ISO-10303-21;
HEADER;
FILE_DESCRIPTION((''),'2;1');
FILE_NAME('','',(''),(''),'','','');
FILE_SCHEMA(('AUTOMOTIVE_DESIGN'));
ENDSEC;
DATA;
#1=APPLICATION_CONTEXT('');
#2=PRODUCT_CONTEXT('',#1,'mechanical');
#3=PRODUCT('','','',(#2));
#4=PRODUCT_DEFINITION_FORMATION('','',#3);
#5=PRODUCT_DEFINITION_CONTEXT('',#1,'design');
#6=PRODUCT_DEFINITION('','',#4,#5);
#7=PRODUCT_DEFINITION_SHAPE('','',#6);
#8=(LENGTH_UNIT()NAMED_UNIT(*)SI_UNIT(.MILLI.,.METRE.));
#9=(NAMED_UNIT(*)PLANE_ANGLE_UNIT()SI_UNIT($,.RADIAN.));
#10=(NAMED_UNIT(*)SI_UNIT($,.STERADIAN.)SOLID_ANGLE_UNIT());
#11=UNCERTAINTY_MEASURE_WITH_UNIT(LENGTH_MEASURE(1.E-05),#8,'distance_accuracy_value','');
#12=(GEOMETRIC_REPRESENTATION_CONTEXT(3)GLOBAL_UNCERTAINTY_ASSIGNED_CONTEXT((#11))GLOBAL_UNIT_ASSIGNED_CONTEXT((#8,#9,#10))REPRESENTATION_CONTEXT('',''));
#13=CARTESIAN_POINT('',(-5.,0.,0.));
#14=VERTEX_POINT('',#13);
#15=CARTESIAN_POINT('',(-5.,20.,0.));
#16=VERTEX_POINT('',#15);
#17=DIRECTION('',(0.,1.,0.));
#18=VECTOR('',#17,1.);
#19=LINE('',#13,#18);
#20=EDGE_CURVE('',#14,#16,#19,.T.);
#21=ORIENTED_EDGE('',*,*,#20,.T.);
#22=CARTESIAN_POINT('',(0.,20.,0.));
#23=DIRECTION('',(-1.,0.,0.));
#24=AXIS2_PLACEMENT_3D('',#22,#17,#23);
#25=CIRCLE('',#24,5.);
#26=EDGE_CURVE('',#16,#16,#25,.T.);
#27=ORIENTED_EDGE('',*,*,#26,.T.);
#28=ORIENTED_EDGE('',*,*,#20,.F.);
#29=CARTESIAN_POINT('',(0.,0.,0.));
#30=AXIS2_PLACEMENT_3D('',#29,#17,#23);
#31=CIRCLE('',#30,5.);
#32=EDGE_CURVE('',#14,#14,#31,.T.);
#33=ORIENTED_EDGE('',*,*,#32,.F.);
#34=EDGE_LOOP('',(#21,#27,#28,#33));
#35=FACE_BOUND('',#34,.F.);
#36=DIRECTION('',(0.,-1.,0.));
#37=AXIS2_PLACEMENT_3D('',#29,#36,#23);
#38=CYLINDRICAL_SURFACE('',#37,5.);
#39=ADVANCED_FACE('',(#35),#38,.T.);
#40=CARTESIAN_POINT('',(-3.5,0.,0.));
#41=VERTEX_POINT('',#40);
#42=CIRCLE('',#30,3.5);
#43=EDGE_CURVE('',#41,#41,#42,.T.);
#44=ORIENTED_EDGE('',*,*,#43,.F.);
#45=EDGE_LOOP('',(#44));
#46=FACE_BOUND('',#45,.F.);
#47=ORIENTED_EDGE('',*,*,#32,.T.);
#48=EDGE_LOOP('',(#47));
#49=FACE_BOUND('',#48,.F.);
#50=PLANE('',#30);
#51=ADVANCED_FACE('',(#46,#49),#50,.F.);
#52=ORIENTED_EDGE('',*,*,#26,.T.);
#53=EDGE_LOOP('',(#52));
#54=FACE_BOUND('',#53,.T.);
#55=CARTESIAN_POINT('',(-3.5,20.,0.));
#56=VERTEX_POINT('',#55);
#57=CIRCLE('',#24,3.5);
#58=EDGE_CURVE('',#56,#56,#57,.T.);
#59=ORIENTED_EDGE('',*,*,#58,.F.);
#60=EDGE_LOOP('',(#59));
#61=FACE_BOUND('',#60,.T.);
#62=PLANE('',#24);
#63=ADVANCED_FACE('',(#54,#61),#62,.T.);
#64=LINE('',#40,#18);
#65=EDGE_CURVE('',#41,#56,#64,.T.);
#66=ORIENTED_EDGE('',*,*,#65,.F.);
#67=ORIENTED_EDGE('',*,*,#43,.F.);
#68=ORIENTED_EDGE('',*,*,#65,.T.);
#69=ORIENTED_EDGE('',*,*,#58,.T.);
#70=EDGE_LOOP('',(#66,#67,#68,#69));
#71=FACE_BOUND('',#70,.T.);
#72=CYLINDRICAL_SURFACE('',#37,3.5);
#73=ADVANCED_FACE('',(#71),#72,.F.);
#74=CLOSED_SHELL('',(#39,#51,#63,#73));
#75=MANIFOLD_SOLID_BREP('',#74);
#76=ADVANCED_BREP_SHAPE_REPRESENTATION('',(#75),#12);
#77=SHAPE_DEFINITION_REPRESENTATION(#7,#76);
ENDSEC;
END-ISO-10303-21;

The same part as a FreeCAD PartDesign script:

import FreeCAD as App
import Part
import Sketcher

V = App.Vector

doc = App.newDocument("Part")
body = doc.addObject("PartDesign::Body", "Body")

sketch1 = doc.addObject("Sketcher::SketchObject", "Sketch")
body.addObject(sketch1)
sketch1.AttachmentSupport = (doc.XZ_Plane, [""])
sketch1.MapMode = "FlatFace"
sketch1.addGeometry([
    Part.Circle(V(0, 0, 0), V(0, 0, 1), 5),
    Part.Circle(V(0, 0, 0), V(0, 0, 1), 3.5),
], False)
sketch1.addConstraint([
    Sketcher.Constraint("Coincident", 0, 3, -1, 1),
    Sketcher.Constraint("Coincident", 1, 3, -1, 1),
    Sketcher.Constraint("Diameter", 0, 10.0),
    Sketcher.Constraint("Diameter", 1, 7.0),
])
pad1 = doc.addObject("PartDesign::Pad", "Pad")
body.addObject(pad1)
pad1.Profile = sketch1
pad1.Length = 20
pad1.Reversed = True

doc.recompute()
